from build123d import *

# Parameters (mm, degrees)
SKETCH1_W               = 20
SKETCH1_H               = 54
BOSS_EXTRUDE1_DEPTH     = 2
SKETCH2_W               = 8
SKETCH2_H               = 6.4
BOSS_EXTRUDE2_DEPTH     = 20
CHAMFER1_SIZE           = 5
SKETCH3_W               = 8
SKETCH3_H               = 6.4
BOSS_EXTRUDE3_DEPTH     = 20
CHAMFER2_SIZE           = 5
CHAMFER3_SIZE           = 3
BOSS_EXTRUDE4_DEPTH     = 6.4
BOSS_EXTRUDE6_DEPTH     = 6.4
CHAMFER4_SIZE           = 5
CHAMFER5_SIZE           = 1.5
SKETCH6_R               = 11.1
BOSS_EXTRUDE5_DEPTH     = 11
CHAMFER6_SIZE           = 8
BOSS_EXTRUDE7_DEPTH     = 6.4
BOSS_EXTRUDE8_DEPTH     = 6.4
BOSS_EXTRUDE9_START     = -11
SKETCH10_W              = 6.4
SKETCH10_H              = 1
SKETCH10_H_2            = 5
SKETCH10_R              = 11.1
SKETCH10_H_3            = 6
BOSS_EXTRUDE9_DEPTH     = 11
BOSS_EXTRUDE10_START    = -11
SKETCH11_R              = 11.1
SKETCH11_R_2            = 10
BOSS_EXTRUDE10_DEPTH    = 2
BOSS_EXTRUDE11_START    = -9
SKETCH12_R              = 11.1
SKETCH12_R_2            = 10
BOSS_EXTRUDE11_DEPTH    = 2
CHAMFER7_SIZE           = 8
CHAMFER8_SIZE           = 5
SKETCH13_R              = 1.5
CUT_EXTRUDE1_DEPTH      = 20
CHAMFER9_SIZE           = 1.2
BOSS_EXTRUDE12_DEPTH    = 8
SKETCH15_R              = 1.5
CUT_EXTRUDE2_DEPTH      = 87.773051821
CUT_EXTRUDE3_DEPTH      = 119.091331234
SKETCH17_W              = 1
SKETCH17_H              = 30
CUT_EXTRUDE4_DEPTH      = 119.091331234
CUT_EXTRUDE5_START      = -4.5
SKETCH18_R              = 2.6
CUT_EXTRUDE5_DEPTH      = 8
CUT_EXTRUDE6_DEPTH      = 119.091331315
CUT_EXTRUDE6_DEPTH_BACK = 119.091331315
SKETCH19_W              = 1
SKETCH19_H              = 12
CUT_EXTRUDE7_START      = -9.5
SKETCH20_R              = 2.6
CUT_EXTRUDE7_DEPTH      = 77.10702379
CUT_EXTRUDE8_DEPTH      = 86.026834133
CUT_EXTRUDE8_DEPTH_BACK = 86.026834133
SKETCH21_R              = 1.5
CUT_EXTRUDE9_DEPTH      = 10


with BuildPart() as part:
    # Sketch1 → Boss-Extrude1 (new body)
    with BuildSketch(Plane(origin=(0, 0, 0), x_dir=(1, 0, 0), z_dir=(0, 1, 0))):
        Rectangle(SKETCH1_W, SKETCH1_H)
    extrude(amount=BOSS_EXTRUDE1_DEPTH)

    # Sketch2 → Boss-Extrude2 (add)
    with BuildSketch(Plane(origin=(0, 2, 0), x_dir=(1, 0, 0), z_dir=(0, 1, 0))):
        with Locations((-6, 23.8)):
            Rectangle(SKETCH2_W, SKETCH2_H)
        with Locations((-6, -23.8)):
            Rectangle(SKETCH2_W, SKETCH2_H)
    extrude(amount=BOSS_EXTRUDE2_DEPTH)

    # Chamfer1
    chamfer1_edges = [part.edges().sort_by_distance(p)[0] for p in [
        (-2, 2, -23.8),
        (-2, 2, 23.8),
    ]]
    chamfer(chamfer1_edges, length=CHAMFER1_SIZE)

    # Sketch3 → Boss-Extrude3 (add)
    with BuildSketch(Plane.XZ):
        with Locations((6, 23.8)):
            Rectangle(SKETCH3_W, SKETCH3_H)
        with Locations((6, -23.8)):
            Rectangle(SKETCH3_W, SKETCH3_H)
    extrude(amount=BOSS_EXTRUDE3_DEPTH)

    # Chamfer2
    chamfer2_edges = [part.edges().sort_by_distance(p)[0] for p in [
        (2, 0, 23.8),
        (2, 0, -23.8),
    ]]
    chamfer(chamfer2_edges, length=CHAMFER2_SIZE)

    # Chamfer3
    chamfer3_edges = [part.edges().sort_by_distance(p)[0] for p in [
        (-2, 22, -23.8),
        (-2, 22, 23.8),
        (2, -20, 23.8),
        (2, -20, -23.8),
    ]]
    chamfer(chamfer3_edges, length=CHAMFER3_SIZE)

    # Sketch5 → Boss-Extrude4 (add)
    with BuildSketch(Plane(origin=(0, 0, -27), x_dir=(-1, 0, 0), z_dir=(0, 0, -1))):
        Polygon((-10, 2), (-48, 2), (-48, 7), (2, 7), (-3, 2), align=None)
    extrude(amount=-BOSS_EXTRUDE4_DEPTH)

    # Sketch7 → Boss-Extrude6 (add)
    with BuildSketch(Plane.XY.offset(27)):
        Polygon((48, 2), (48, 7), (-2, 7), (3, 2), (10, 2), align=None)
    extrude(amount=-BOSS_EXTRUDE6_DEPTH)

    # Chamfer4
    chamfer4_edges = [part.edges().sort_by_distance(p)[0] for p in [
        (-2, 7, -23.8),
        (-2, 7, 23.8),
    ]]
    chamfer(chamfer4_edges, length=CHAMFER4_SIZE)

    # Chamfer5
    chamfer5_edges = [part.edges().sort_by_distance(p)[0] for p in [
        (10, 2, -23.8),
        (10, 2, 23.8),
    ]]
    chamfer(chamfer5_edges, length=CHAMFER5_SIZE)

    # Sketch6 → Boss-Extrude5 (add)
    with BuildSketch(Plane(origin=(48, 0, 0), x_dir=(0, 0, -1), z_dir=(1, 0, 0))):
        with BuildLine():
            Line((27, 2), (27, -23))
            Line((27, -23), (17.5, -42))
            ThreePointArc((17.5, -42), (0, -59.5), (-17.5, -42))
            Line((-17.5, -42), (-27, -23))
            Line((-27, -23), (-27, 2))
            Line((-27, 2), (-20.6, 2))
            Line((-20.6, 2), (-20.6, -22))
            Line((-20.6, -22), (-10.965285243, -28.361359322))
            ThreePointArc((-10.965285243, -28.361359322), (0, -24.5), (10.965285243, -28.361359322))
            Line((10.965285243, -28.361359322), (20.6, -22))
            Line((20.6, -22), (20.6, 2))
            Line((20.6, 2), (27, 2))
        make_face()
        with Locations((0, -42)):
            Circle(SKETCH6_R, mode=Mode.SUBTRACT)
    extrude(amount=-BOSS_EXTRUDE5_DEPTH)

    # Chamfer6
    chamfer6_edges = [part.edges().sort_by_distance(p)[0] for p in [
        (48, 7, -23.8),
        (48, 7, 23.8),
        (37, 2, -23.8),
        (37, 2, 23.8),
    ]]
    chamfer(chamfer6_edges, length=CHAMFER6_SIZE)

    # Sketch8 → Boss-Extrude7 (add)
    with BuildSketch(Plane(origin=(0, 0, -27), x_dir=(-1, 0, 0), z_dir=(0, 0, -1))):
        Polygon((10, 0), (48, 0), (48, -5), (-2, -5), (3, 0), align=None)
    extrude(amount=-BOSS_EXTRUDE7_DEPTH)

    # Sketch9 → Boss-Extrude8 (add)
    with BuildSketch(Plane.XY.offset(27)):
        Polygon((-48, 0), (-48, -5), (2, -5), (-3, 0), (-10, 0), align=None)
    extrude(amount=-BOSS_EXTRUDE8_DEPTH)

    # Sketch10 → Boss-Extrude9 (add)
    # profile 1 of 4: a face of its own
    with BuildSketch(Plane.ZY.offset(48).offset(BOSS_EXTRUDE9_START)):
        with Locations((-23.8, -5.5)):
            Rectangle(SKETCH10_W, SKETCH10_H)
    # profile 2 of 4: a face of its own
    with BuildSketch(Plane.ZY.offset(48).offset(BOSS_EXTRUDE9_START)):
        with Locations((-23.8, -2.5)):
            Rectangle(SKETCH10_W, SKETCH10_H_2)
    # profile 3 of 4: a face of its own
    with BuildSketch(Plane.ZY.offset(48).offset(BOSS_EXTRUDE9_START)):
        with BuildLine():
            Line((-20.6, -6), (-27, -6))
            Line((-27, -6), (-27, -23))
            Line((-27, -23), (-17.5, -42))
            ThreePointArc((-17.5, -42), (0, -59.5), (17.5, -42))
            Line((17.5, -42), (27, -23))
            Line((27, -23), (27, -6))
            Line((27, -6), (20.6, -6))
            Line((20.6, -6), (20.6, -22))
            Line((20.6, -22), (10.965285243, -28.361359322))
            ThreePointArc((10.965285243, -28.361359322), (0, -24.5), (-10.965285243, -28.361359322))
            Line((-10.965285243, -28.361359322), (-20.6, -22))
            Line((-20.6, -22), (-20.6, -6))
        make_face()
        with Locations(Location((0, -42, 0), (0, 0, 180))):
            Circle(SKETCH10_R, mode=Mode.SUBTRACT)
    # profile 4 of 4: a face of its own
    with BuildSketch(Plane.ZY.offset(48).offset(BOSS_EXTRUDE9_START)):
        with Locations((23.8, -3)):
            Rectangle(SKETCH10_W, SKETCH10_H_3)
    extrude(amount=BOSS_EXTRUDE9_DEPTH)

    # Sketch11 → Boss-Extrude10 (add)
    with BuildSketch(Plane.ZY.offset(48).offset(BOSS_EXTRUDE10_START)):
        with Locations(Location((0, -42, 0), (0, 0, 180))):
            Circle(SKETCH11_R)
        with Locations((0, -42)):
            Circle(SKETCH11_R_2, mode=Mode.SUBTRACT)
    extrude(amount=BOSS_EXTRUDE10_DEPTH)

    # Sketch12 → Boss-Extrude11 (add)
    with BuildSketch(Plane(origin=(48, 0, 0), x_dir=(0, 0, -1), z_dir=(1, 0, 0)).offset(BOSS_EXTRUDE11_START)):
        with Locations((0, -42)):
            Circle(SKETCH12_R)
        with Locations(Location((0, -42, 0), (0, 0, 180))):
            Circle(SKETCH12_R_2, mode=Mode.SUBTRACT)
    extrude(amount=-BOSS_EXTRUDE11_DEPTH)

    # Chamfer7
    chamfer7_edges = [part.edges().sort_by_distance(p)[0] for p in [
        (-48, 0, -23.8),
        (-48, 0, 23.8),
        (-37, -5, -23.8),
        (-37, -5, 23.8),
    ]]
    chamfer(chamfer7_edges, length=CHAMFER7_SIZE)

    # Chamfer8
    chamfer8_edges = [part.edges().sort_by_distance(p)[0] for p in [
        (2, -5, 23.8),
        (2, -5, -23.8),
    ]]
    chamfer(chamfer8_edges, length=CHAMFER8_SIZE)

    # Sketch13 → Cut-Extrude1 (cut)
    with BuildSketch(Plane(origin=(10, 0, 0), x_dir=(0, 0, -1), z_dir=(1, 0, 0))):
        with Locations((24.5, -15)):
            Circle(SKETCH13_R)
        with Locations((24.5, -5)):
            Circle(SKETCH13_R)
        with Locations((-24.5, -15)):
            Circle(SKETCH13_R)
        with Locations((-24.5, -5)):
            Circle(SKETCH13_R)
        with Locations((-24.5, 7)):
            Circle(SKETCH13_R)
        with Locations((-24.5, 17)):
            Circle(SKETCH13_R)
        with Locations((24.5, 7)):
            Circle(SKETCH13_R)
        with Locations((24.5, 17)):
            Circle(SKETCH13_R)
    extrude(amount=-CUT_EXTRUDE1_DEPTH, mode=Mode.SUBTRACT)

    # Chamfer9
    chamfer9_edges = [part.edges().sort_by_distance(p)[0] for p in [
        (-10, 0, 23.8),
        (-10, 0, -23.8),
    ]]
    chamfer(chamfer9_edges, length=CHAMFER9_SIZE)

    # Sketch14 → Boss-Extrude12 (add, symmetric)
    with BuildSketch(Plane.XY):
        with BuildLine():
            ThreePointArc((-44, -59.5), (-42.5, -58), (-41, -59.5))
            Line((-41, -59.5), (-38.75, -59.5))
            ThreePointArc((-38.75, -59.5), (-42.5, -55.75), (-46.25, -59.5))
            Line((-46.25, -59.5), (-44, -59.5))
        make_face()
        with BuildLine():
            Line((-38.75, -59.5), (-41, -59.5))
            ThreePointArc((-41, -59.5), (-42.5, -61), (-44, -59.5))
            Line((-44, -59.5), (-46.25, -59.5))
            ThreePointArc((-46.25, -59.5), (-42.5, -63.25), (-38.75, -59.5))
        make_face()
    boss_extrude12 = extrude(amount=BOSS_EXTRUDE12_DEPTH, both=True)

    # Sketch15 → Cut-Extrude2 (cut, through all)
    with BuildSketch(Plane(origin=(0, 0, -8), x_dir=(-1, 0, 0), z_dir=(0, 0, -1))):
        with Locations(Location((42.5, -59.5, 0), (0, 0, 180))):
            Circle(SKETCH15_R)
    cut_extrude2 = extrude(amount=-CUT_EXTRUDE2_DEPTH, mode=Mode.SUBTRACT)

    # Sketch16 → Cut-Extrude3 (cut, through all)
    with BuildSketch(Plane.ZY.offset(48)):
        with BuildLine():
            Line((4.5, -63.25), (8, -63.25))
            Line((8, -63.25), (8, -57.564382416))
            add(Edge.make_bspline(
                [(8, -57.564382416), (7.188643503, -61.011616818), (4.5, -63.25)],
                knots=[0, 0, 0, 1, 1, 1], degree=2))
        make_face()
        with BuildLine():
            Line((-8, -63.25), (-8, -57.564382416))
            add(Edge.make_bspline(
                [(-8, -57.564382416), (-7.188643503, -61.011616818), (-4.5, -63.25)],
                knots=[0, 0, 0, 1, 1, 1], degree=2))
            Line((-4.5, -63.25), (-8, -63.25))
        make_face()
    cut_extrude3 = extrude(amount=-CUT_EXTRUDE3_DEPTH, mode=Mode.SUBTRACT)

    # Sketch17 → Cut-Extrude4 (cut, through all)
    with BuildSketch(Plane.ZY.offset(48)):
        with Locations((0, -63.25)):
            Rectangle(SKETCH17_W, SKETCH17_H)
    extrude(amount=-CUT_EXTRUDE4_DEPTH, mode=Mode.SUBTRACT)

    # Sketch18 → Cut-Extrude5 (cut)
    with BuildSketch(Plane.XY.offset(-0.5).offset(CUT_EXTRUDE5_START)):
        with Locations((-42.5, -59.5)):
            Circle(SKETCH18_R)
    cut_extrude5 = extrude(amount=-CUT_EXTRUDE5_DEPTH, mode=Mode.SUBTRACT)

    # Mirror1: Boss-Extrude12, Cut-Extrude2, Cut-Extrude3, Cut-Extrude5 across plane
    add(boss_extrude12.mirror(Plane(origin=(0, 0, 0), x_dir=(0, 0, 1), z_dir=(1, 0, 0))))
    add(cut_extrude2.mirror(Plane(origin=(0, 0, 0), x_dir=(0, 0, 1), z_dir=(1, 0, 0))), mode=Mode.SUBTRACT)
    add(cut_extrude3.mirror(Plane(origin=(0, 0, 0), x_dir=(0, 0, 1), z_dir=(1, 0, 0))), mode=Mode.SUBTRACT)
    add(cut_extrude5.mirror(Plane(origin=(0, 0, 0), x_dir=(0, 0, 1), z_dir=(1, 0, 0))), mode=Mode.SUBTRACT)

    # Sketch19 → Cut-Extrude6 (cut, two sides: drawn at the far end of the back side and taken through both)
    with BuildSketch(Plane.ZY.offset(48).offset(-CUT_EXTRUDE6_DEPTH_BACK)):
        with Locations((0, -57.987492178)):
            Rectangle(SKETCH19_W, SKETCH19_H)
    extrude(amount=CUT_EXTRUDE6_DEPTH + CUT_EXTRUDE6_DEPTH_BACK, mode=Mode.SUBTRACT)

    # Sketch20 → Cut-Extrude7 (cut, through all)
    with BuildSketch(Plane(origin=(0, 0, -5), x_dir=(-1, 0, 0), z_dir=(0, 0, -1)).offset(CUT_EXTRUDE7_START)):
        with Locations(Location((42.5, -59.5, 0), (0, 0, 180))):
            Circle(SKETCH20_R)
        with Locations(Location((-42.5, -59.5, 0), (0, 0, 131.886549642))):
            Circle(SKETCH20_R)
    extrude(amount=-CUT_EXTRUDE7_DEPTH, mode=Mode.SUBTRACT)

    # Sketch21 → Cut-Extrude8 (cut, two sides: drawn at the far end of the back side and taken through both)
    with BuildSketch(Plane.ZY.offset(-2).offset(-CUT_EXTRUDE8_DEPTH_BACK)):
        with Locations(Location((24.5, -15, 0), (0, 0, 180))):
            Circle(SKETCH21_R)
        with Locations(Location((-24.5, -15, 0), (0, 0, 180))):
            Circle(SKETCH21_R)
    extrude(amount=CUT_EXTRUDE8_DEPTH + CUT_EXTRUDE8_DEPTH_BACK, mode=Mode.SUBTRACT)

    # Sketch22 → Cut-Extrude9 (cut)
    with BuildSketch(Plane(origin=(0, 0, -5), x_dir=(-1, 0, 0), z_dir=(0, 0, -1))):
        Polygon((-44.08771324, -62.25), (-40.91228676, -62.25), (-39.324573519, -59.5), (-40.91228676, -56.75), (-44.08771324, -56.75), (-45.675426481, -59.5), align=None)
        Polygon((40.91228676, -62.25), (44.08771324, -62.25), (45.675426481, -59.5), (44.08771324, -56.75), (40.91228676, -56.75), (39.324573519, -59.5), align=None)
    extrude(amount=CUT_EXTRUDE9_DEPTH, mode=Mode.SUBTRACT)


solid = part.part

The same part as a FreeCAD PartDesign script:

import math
import FreeCAD as App
import Part
import Sketcher
from FreeCAD import Vector
Q = App.Units.Quantity


def edges_at(feature, points):
    """Names of the edges that pass closest to the given points."""
    edges = feature.Shape.Edges
    near = lambda p: min(range(len(edges)), key=lambda i: edges[i].distToShape(Part.Vertex(*p))[0])
    return sorted({f"Edge{near(p) + 1}" for p in points})


def add_polygon(sketch, points):
    """Adds a closed chain of lines whose ends are joined by coincident constraints."""
    first, n = sketch.GeometryCount, len(points)
    for a, b in zip(points, points[1:] + points[:1]):
        sketch.addGeometry(Part.LineSegment(App.Vector(*a, 0), App.Vector(*b, 0)), False)
    for i in range(n):
        sketch.addConstraint(Sketcher.Constraint("Coincident", first + i, 2, first + (i + 1) % n, 1))

doc = App.newDocument("Part")
body = doc.addObject("PartDesign::Body", "Body")

# Sketch on XZ plane
sketch1 = body.newObject("Sketcher::SketchObject", "Sketch")
sketch1.AttachmentSupport = (doc.getObject("XZ_Plane"), [""])
sketch1.MapMode = "FlatFace"
add_polygon(sketch1, [(-10, -27), (-10, 27), (10, 27), (10, -27)])  # lines 0-3
sketch1.addConstraint(Sketcher.Constraint("Vertical", 0))
sketch1.addConstraint(Sketcher.Constraint("Horizontal", 1))
sketch1.addConstraint(Sketcher.Constraint("Vertical", 2))
sketch1.addConstraint(Sketcher.Constraint("Horizontal", 3))
sketch1.addConstraint(Sketcher.Constraint("Symmetric", 0, 2, 2, 2, -1, 1))
sketch1.addConstraint(Sketcher.Constraint("DistanceX", 1, 1, 1, 2, Q("20 mm")))
sketch1.addConstraint(Sketcher.Constraint("DistanceY", 0, 1, 0, 2, Q("54 mm")))
pad1 = body.newObject("PartDesign::Pad", "Pad")
pad1.Profile = sketch1
pad1.Length = 2
pad1.Reversed = True

# Sketch on XZ plane
sketch2 = body.newObject("Sketcher::SketchObject", "Sketch001")
sketch2.AttachmentSupport = (doc.getObject("XZ_Plane"), [""])
sketch2.MapMode = "FlatFace"
sketch2.AttachmentOffset = App.Placement(Vector(0, 0, -2), App.Rotation())
add_polygon(sketch2, [(-10, -27), (-10, -21), (-2, -21), (-2, -27)])  # lines 0-3
add_polygon(sketch2, [(-10, 21), (-10, 27), (-2, 27), (-2, 21)])  # lines 4-7
sketch2.addConstraint(Sketcher.Constraint("Vertical", 0))
sketch2.addConstraint(Sketcher.Constraint("Horizontal", 1))
sketch2.addConstraint(Sketcher.Constraint("Vertical", 2))
sketch2.addConstraint(Sketcher.Constraint("Horizontal", 3))
sketch2.addConstraint(Sketcher.Constraint("Vertical", 4))
sketch2.addConstraint(Sketcher.Constraint("Horizontal", 5))
sketch2.addConstraint(Sketcher.Constraint("Vertical", 6))
sketch2.addConstraint(Sketcher.Constraint("Horizontal", 7))
sketch2.addConstraint(Sketcher.Constraint("Symmetric", 3, 2, 4, 2, -1))
sketch2.addConstraint(Sketcher.Constraint("Symmetric", 1, 2, 6, 2, -1))
sketch2.addConstraint(Sketcher.Constraint("DistanceX", 1, 1, 1, 2, Q("8 mm")))
sketch2.addConstraint(Sketcher.Constraint("DistanceY", 0, 1, 0, 2, Q("6.4 mm")))
sketch2.addConstraint(Sketcher.Constraint("DistanceX", 0, 2, -1, 1, Q("10 mm")))
sketch2.addConstraint(Sketcher.Constraint("DistanceY", 2, 2, -1, 1, Q("27 mm")))
pad2 = body.newObject("PartDesign::Pad", "Pad001")
pad2.Profile = sketch2
pad2.Length = 20
pad2.Reversed = True
doc.recompute()

chamfer = body.newObject("PartDesign::Chamfer", "Chamfer")
chamfer.Base = (pad2, edges_at(pad2, [(-2, 2, -23.8), (-2, 2, 23.8)]))
chamfer.Size = 5

# Sketch on XZ plane
sketch3 = body.newObject("Sketcher::SketchObject", "Sketch002")
sketch3.AttachmentSupport = (doc.getObject("XZ_Plane"), [""])
sketch3.MapMode = "FlatFace"
add_polygon(sketch3, [(2, 27), (2, 21), (10, 21), (10, 27)])  # lines 0-3
add_polygon(sketch3, [(2, -21), (2, -27), (10, -27), (10, -21)])  # lines 4-7
sketch3.addConstraint(Sketcher.Constraint("Vertical", 0))
sketch3.addConstraint(Sketcher.Constraint("Horizontal", 1))
sketch3.addConstraint(Sketcher.Constraint("Vertical", 2))
sketch3.addConstraint(Sketcher.Constraint("Horizontal", 3))
sketch3.addConstraint(Sketcher.Constraint("Vertical", 4))
sketch3.addConstraint(Sketcher.Constraint("Horizontal", 5))
sketch3.addConstraint(Sketcher.Constraint("Vertical", 6))
sketch3.addConstraint(Sketcher.Constraint("Horizontal", 7))
sketch3.addConstraint(Sketcher.Constraint("Symmetric", 3, 2, 4, 2, -1))
sketch3.addConstraint(Sketcher.Constraint("Symmetric", 1, 2, 6, 2, -1))
sketch3.addConstraint(Sketcher.Constraint("DistanceX", 1, 1, 1, 2, Q("8 mm")))
sketch3.addConstraint(Sketcher.Constraint("DistanceY", 0, 2, 0, 1, Q("6.4 mm")))
sketch3.addConstraint(Sketcher.Constraint("DistanceX", -1, 1, 0, 2, Q("2 mm")))
sketch3.addConstraint(Sketcher.Constraint("DistanceY", -1, 1, 2, 2, Q("27 mm")))
pad3 = body.newObject("PartDesign::Pad", "Pad002")
pad3.Profile = sketch3
pad3.Length = 20
doc.recompute()

chamfer2 = body.newObject("PartDesign::Chamfer", "Chamfer001")
chamfer2.Base = (pad3, edges_at(pad3, [(2, 0, 23.8), (2, 0, -23.8)]))
chamfer2.Size = 5
doc.recompute()

chamfer3 = body.newObject("PartDesign::Chamfer", "Chamfer002")
chamfer3.Base = (chamfer2, edges_at(chamfer2, [
    (-2, 22, -23.8),
    (-2, 22, 23.8),
    (2, -20, 23.8),
    (2, -20, -23.8),
]))
chamfer3.Size = 3

# Sketch on XY plane
sketch4 = body.newObject("Sketcher::SketchObject", "Sketch003")
sketch4.AttachmentSupport = (doc.getObject("XY_Plane"), [""])
sketch4.MapMode = "FlatFace"
sketch4.AttachmentOffset = App.Placement(Vector(0, 0, -27), App.Rotation())
add_polygon(sketch4, [(48, 2), (3, 2), (-2, 7), (48, 7)])  # lines 0-3
sketch4.addConstraint(Sketcher.Constraint("Horizontal", 0))
sketch4.addConstraint(Sketcher.Constraint("Horizontal", 2))
sketch4.addConstraint(Sketcher.Constraint("Vertical", 3))
sketch4.addConstraint(Sketcher.Constraint("DistanceX", 0, 2, 0, 1, Q("45 mm")))
sketch4.addConstraint(Sketcher.Constraint("DistanceX", 2, 1, 2, 2, Q("50 mm")))
sketch4.addConstraint(Sketcher.Constraint("DistanceY", 3, 2, 3, 1, Q("5 mm")))
sketch4.addConstraint(Sketcher.Constraint("DistanceX", -1, 1, 0, 2, Q("3 mm")))
sketch4.addConstraint(Sketcher.Constraint("DistanceY", -1, 1, 0, 2, Q("2 mm")))
pad4 = body.newObject("PartDesign::Pad", "Pad003")
pad4.Profile = sketch4
pad4.Length = 6.4

# Sketch on XY plane
sketch5 = body.newObject("Sketcher::SketchObject", "Sketch004")
sketch5.AttachmentSupport = (doc.getObject("XY_Plane"), [""])
sketch5.MapMode = "FlatFace"
sketch5.AttachmentOffset = App.Placement(Vector(0, 0, 27), App.Rotation())
add_polygon(sketch5, [(48, 2), (48, 7), (-2, 7), (3, 2)])  # lines 0-3
sketch5.addConstraint(Sketcher.Constraint("Vertical", 0))
sketch5.addConstraint(Sketcher.Constraint("Horizontal", 1))
sketch5.addConstraint(Sketcher.Constraint("Horizontal", 3))
sketch5.addConstraint(Sketcher.Constraint("DistanceX", 1, 2, 1, 1, Q("50 mm")))
sketch5.addConstraint(Sketcher.Constraint("DistanceX", 3, 1, 3, 2, Q("45 mm")))
sketch5.addConstraint(Sketcher.Constraint("DistanceY", 0, 1, 0, 2, Q("5 mm")))
sketch5.addConstraint(Sketcher.Constraint("DistanceX", -1, 1, 0, 2, Q("48 mm")))
sketch5.addConstraint(Sketcher.Constraint("DistanceY", -1, 1, 0, 2, Q("7 mm")))
pad5 = body.newObject("PartDesign::Pad", "Pad004")
pad5.Profile = sketch5
pad5.Length = 6.4
pad5.Reversed = True
doc.recompute()

chamfer4 = body.newObject("PartDesign::Chamfer", "Chamfer003")
chamfer4.Base = (pad5, edges_at(pad5, [(-2, 7, -23.8), (-2, 7, 23.8)]))
chamfer4.Size = 5
doc.recompute()

chamfer5 = body.newObject("PartDesign::Chamfer", "Chamfer004")
chamfer5.Base = (chamfer4, edges_at(chamfer4, [(10, 2, -23.8), (10, 2, 23.8)]))
chamfer5.Size = 1.5

# Sketch on YZ plane
sketch6 = body.newObject("Sketcher::SketchObject", "Sketch005")
sketch6.AttachmentSupport = (doc.getObject("YZ_Plane"), [""])
sketch6.MapMode = "FlatFace"
sketch6.AttachmentOffset = App.Placement(Vector(0, 0, 48), App.Rotation())
sketch6.addGeometry(Part.LineSegment(Vector(-23, -27, 0), Vector(2, -27, 0)), False)
sketch6.addGeometry(Part.LineSegment(Vector(2, -27, 0), Vector(2, -21, 0)), False)
sketch6.addGeometry(Part.LineSegment(Vector(2, -21, 0), Vector(-22, -21, 0)), False)
sketch6.addGeometry(Part.LineSegment(Vector(-22, -21, 0), Vector(-28, -11, 0)), False)
sketch6.addGeometry(Part.ArcOfCircle(Part.Circle(Vector(-42, 0, 0), Vector(0, 0, 1), 18), math.radians(-39), math.radians(39)), False)
sketch6.addGeometry(Part.LineSegment(Vector(-28, 11, 0), Vector(-22, 21, 0)), False)
sketch6.addGeometry(Part.LineSegment(Vector(-22, 21, 0), Vector(2, 21, 0)), False)
sketch6.addGeometry(Part.LineSegment(Vector(2, 21, 0), Vector(2, 27, 0)), False)
sketch6.addGeometry(Part.LineSegment(Vector(2, 27, 0), Vector(-23, 27, 0)), False)
sketch6.addGeometry(Part.LineSegment(Vector(-23, 27, 0), Vector(-42, 18, 0)), False)
sketch6.addGeometry(Part.ArcOfCircle(Part.Circle(Vector(-42, 0, 0), Vector(0, 0, 1), 18), math.radians(90), math.radians(270)), False)
sketch6.addGeometry(Part.LineSegment(Vector(-42, -18, 0), Vector(-23, -27, 0)), False)
sketch6.addGeometry(Part.Circle(Vector(-42, 0, 0), Vector(0, 0, 1), 11), False)
sketch6.addConstraint(Sketcher.Constraint("Coincident", 0, 2, 1, 1))
sketch6.addConstraint(Sketcher.Constraint("Coincident", 1, 2, 2, 1))
sketch6.addConstraint(Sketcher.Constraint("Coincident", 2, 2, 3, 1))
sketch6.addConstraint(Sketcher.Constraint("Coincident", 3, 2, 4, 1))
sketch6.addConstraint(Sketcher.Constraint("Coincident", 4, 2, 5, 1))
sketch6.addConstraint(Sketcher.Constraint("Coincident", 5, 2, 6, 1))
sketch6.addConstraint(Sketcher.Constraint("Coincident", 6, 2, 7, 1))
sketch6.addConstraint(Sketcher.Constraint("Coincident", 7, 2, 8, 1))
sketch6.addConstraint(Sketcher.Constraint("Coincident", 8, 2, 9, 1))
sketch6.addConstraint(Sketcher.Constraint("Coincident", 9, 2, 10, 1))
sketch6.addConstraint(Sketcher.Constraint("Coincident", 10, 2, 11, 1))
sketch6.addConstraint(Sketcher.Constraint("Coincident", 11, 2, 0, 1))
sketch6.addConstraint(Sketcher.Constraint("Horizontal", 0))
sketch6.addConstraint(Sketcher.Constraint("Vertical", 1))
sketch6.addConstraint(Sketcher.Constraint("Horizontal", 2))
sketch6.addConstraint(Sketcher.Constraint("Horizontal", 6))
sketch6.addConstraint(Sketcher.Constraint("Vertical", 7))
sketch6.addConstraint(Sketcher.Constraint("Horizontal", 8))
sketch6.addConstraint(Sketcher.Constraint("Coincident", 10, 3, 4, 3))
sketch6.addConstraint(Sketcher.Constraint("Coincident", 12, 3, 4, 3))
sketch6.addConstraint(Sketcher.Constraint("Equal", 4, 10))
sketch6.addConstraint(Sketcher.Constraint("Symmetric", 3, 2, 4, 2, -1))
sketch6.addConstraint(Sketcher.Constraint("Symmetric", 2, 2, 5, 2, -1))
sketch6.addConstraint(Sketcher.Constraint("Symmetric", 0, 2, 7, 2, -1))
sketch6.addConstraint(Sketcher.Constraint("Vertical", 12, 3, 9, 2))
sketch6.addConstraint(Sketcher.Constraint("Vertical", 9, 2, 10, 2))
sketch6.addConstraint(Sketcher.Constraint("Vertical", 8, 2, 11, 2))
sketch6.addConstraint(Sketcher.Constraint("Diameter", 12, Q("22.2 mm")))
sketch6.addConstraint(Sketcher.Constraint("Radius", 4, Q("17.5 mm")))
sketch6.addConstraint(Sketcher.Constraint("DistanceX", 0, 1, 0, 2, Q("25 mm")))
sketch6.addConstraint(Sketcher.Constraint("DistanceX", 2, 2, 2, 1, Q("24 mm")))
sketch6.addConstraint(Sketcher.Constraint("DistanceY", 1, 1, 1, 2, Q("6.4 mm")))
sketch6.addConstraint(Sketcher.Constraint("DistanceX", 4, 3, -1, 1, Q("42 mm")))
sketch6.addConstraint(Sketcher.Constraint("DistanceX", -1, 1, 0, 2, Q("2 mm")))
sketch6.addConstraint(Sketcher.Constraint("DistanceY", 0, 2, -1, 1, Q("27 mm")))
sketch6.addConstraint(Sketcher.Constraint("Distance", 3, Q("11.545329 mm")))
pad6 = body.newObject("PartDesign::Pad", "Pad005")
pad6.Profile = sketch6
pad6.Length = 11
pad6.Reversed = True
doc.recompute()

chamfer6 = body.newObject("PartDesign::Chamfer", "Chamfer005")
chamfer6.Base = (pad6, edges_at(pad6, [
    (48, 7, -23.8),
    (48, 7, 23.8),
    (37, 2, -23.8),
    (37, 2, 23.8),
]))
chamfer6.Size = 8

# Sketch on XY plane
sketch7 = body.newObject("Sketcher::SketchObject", "Sketch006")
sketch7.AttachmentSupport = (doc.getObject("XY_Plane"), [""])
sketch7.MapMode = "FlatFace"
sketch7.AttachmentOffset = App.Placement(Vector(0, 0, -27), App.Rotation())
add_polygon(sketch7, [(-48, 0), (-3, 0), (2, -5), (-48, -5)])  # lines 0-3
sketch7.addConstraint(Sketcher.Constraint("Horizontal", 0))
sketch7.addConstraint(Sketcher.Constraint("Horizontal", 2))
sketch7.addConstraint(Sketcher.Constraint("Vertical", 3))
sketch7.addConstraint(Sketcher.Constraint("PointOnObject", 0, 2, -1))
sketch7.addConstraint(Sketcher.Constraint("DistanceX", 0, 1, 0, 2, Q("45 mm")))
sketch7.addConstraint(Sketcher.Constraint("DistanceX", 2, 2, 2, 1, Q("50 mm")))
sketch7.addConstraint(Sketcher.Constraint("DistanceY", 3, 1, 3, 2, Q("5 mm")))
sketch7.addConstraint(Sketcher.Constraint("DistanceX", 0, 2, -1, 1, Q("3 mm")))
pad7 = body.newObject("PartDesign::Pad", "Pad006")
pad7.Profile = sketch7
pad7.Length = 6.4

# Sketch on XY plane
sketch8 = body.newObject("Sketcher::SketchObject", "Sketch007")
sketch8.AttachmentSupport = (doc.getObject("XY_Plane"), [""])
sketch8.MapMode = "FlatFace"
sketch8.AttachmentOffset = App.Placement(Vector(0, 0, 27), App.Rotation())
add_polygon(sketch8, [(-48, 0), (-48, -5), (2, -5), (-3, 0)])  # lines 0-3
sketch8.addConstraint(Sketcher.Constraint("Vertical", 0))
sketch8.addConstraint(Sketcher.Constraint("Horizontal", 1))
sketch8.addConstraint(Sketcher.Constraint("Horizontal", 3))
sketch8.addConstraint(Sketcher.Constraint("PointOnObject", 2, 2, -1))
sketch8.addConstraint(Sketcher.Constraint("DistanceX", 1, 1, 1, 2, Q("50 mm")))
sketch8.addConstraint(Sketcher.Constraint("DistanceX", 3, 2, 3, 1, Q("45 mm")))
sketch8.addConstraint(Sketcher.Constraint("DistanceY", 0, 2, 0, 1, Q("5 mm")))
sketch8.addConstraint(Sketcher.Constraint("DistanceX", 0, 2, -1, 1, Q("48 mm")))
pad8 = body.newObject("PartDesign::Pad", "Pad007")
pad8.Profile = sketch8
pad8.Length = 6.4
pad8.Reversed = True

# Sketch on YZ plane
sketch9 = body.newObject("Sketcher::SketchObject", "Sketch008")
sketch9.AttachmentSupport = (doc.getObject("YZ_Plane"), [""])
sketch9.MapMode = "FlatFace"
sketch9.AttachmentOffset = App.Placement(Vector(0, 0, -37), App.Rotation())
sketch9.addGeometry(Part.LineSegment(Vector(-23, -27, 0), Vector(-42, -18, 0)), False)
sketch9.addGeometry(Part.ArcOfCircle(Part.Circle(Vector(-42, 0, 0), Vector(0, 0, 1), 18), math.radians(90), math.radians(270)), False)
sketch9.addGeometry(Part.LineSegment(Vector(-42, 18, 0), Vector(-23, 27, 0)), False)
sketch9.addGeometry(Part.LineSegment(Vector(-23, 27, 0), Vector(0, 27, 0)), False)
sketch9.addGeometry(Part.LineSegment(Vector(0, 27, 0), Vector(0, 21, 0)), False)
sketch9.addGeometry(Part.LineSegment(Vector(0, 21, 0), Vector(-22, 21, 0)), False)
sketch9.addGeometry(Part.LineSegment(Vector(-22, 21, 0), Vector(-28, 11, 0)), False)
sketch9.addGeometry(Part.ArcOfCircle(Part.Circle(Vector(-42, 0, 0), Vector(0, 0, 1), 18), math.radians(-39), math.radians(39)), False)
sketch9.addGeometry(Part.LineSegment(Vector(-28, -11, 0), Vector(-22, -21, 0)), False)
sketch9.addGeometry(Part.LineSegment(Vector(-22, -21, 0), Vector(0, -21, 0)), False)
sketch9.addGeometry(Part.LineSegment(Vector(0, -21, 0), Vector(0, -27, 0)), False)
sketch9.addGeometry(Part.LineSegment(Vector(0, -27, 0), Vector(-23, -27, 0)), False)
sketch9.addGeometry(Part.Circle(Vector(-42, 0, 0), Vector(0, 0, 1), 11), False)
sketch9.addConstraint(Sketcher.Constraint("Coincident", 0, 2, 1, 2))
sketch9.addConstraint(Sketcher.Constraint("Coincident", 1, 1, 2, 1))
sketch9.addConstraint(Sketcher.Constraint("Coincident", 2, 2, 3, 1))
sketch9.addConstraint(Sketcher.Constraint("Coincident", 3, 2, 4, 1))
sketch9.addConstraint(Sketcher.Constraint("Coincident", 4, 2, 5, 1))
sketch9.addConstraint(Sketcher.Constraint("Coincident", 5, 2, 6, 1))
sketch9.addConstraint(Sketcher.Constraint("Coincident", 6, 2, 7, 2))
sketch9.addConstraint(Sketcher.Constraint("Coincident", 7, 1, 8, 1))
sketch9.addConstraint(Sketcher.Constraint("Coincident", 8, 2, 9, 1))
sketch9.addConstraint(Sketcher.Constraint("Coincident", 9, 2, 10, 1))
sketch9.addConstraint(Sketcher.Constraint("Coincident", 10, 2, 11, 1))
sketch9.addConstraint(Sketcher.Constraint("Coincident", 11, 2, 0, 1))
sketch9.addConstraint(Sketcher.Constraint("Horizontal", 3))
sketch9.addConstraint(Sketcher.Constraint("Vertical", 4))
sketch9.addConstraint(Sketcher.Constraint("Horizontal", 5))
sketch9.addConstraint(Sketcher.Constraint("Horizontal", 9))
sketch9.addConstraint(Sketcher.Constraint("Vertical", 10))
sketch9.addConstraint(Sketcher.Constraint("Horizontal", 11))
sketch9.addConstraint(Sketcher.Constraint("Coincident", 7, 3, 1, 3))
sketch9.addConstraint(Sketcher.Constraint("Coincident", 12, 3, 1, 3))
sketch9.addConstraint(Sketcher.Constraint("Equal", 1, 7))
sketch9.addConstraint(Sketcher.Constraint("Symmetric", 4, 2, 9, 2, -1, 1))
sketch9.addConstraint(Sketcher.Constraint("Symmetric", 0, 2, 1, 1, -1))
sketch9.addConstraint(Sketcher.Constraint("Symmetric", 3, 2, 10, 2, -1))
sketch9.addConstraint(Sketcher.Constraint("Vertical", 12, 3, 0, 2))
sketch9.addConstraint(Sketcher.Constraint("Vertical", 6, 2, 7, 1))
sketch9.addConstraint(Sketcher.Constraint("Vertical", 5, 2, 8, 2))
sketch9.addConstraint(Sketcher.Constraint("Vertical", 2, 2, 11, 2))
sketch9.addConstraint(Sketcher.Constraint("Diameter", 12, Q("22.2 mm")))
sketch9.addConstraint(Sketcher.Constraint("Radius", 1, Q("17.5 mm")))
sketch9.addConstraint(Sketcher.Constraint("DistanceX", 3, 1, 3, 2, Q("23 mm")))
sketch9.addConstraint(Sketcher.Constraint("DistanceX", 5, 2, 5, 1, Q("22 mm")))
sketch9.addConstraint(Sketcher.Constraint("DistanceY", 4, 2, 4, 1, Q("6.4 mm")))
sketch9.addConstraint(Sketcher.Constraint("DistanceX", 1, 3, -1, 1, Q("42 mm")))
sketch9.addConstraint(Sketcher.Constraint("DistanceY", -1, 1, 2, 2, Q("27 mm")))
sketch9.addConstraint(Sketcher.Constraint("Distance", 6, Q("11.545329 mm")))
pad9 = body.newObject("PartDesign::Pad", "Pad008")
pad9.Profile = sketch9
pad9.Length = 11
pad9.Reversed = True

# Sketch on YZ plane
sketch10 = body.newObject("Sketcher::SketchObject", "Sketch009")
sketch10.AttachmentSupport = (doc.getObject("YZ_Plane"), [""])
sketch10.MapMode = "FlatFace"
sketch10.AttachmentOffset = App.Placement(Vector(0, 0, -37), App.Rotation())
sketch10.addGeometry(Part.Circle(Vector(-42, 0, 0), Vector(0, 0, 1), 11), False)
sketch10.addGeometry(Part.Circle(Vector(-42, 0, 0), Vector(0, 0, 1), 10), False)
sketch10.addConstraint(Sketcher.Constraint("Coincident", 1, 3, 0, 3))
sketch10.addConstraint(Sketcher.Constraint("PointOnObject", 0, 3, -1))
sketch10.addConstraint(Sketcher.Constraint("Diameter", 1, Q("20 mm")))
sketch10.addConstraint(Sketcher.Constraint("Diameter", 0, Q("22.2 mm")))
sketch10.addConstraint(Sketcher.Constraint("DistanceX", 0, 3, -1, 1, Q("42 mm")))
pad10 = body.newObject("PartDesign::Pad", "Pad009")
pad10.Profile = sketch10
pad10.Length = 2
pad10.Reversed = True

# Sketch on YZ plane
sketch11 = body.newObject("Sketcher::SketchObject", "Sketch010")
sketch11.AttachmentSupport = (doc.getObject("YZ_Plane"), [""])
sketch11.MapMode = "FlatFace"
sketch11.AttachmentOffset = App.Placement(Vector(0, 0, 39), App.Rotation())
sketch11.addGeometry(Part.Circle(Vector(-42, 0, 0), Vector(0, 0, 1), 11), False)
sketch11.addGeometry(Part.Circle(Vector(-42, 0, 0), Vector(0, 0, 1), 10), False)
sketch11.addConstraint(Sketcher.Constraint("Coincident", 1, 3, 0, 3))
sketch11.addConstraint(Sketcher.Constraint("PointOnObject", 0, 3, -1))
sketch11.addConstraint(Sketcher.Constraint("Diameter", 1, Q("20 mm")))
sketch11.addConstraint(Sketcher.Constraint("Diameter", 0, Q("22.2 mm")))
sketch11.addConstraint(Sketcher.Constraint("DistanceX", 0, 3, -1, 1, Q("42 mm")))
pad11 = body.newObject("PartDesign::Pad", "Pad010")
pad11.Profile = sketch11
pad11.Length = 2
pad11.Reversed = True
doc.recompute()

chamfer7 = body.newObject("PartDesign::Chamfer", "Chamfer006")
chamfer7.Base = (pad11, edges_at(pad11, [
    (-48, 0, -23.8),
    (-48, 0, 23.8),
    (-37, -5, -23.8),
    (-37, -5, 23.8),
]))
chamfer7.Size = 8
doc.recompute()

chamfer8 = body.newObject("PartDesign::Chamfer", "Chamfer007")
chamfer8.Base = (chamfer7, edges_at(chamfer7, [(2, -5, 23.8), (2, -5, -23.8)]))
chamfer8.Size = 5

# Sketch on YZ plane
sketch12 = body.newObject("Sketcher::SketchObject", "Sketch011")
sketch12.AttachmentSupport = (doc.getObject("YZ_Plane"), [""])
sketch12.MapMode = "FlatFace"
sketch12.AttachmentOffset = App.Placement(Vector(0, 0, 10), App.Rotation())
sketch12.addGeometry(Part.Circle(Vector(-15, -24.5, 0), Vector(0, 0, 1), 1.5), False)
sketch12.addGeometry(Part.Circle(Vector(-5, -24.5, 0), Vector(0, 0, 1), 1.5), False)
sketch12.addGeometry(Part.Circle(Vector(-15, 24.5, 0), Vector(0, 0, 1), 1.5), False)
sketch12.addGeometry(Part.Circle(Vector(-5, 24.5, 0), Vector(0, 0, 1), 1.5), False)
sketch12.addGeometry(Part.Circle(Vector(7, 24.5, 0), Vector(0, 0, 1), 1.5), False)
sketch12.addGeometry(Part.Circle(Vector(17, 24.5, 0), Vector(0, 0, 1), 1.5), False)
sketch12.addGeometry(Part.Circle(Vector(7, -24.5, 0), Vector(0, 0, 1), 1.5), False)
sketch12.addGeometry(Part.Circle(Vector(17, -24.5, 0), Vector(0, 0, 1), 1.5), False)
sketch12.addConstraint(Sketcher.Constraint("Equal", 0, 1))
sketch12.addConstraint(Sketcher.Constraint("Equal", 1, 2))
sketch12.addConstraint(Sketcher.Constraint("Equal", 2, 3))
sketch12.addConstraint(Sketcher.Constraint("Equal", 3, 4))
sketch12.addConstraint(Sketcher.Constraint("Equal", 4, 5))
sketch12.addConstraint(Sketcher.Constraint("Equal", 5, 6))
sketch12.addConstraint(Sketcher.Constraint("Equal", 6, 7))
sketch12.addConstraint(Sketcher.Constraint("Symmetric", 0, 3, 2, 3, -1))
sketch12.addConstraint(Sketcher.Constraint("Symmetric", 1, 3, 3, 3, -1))
sketch12.addConstraint(Sketcher.Constraint("Symmetric", 4, 3, 6, 3, -1))
sketch12.addConstraint(Sketcher.Constraint("Symmetric", 5, 3, 7, 3, -1))
sketch12.addConstraint(Sketcher.Constraint("Horizontal", 0, 3, 1, 3))
sketch12.addConstraint(Sketcher.Constraint("Horizontal", 3, 3, 4, 3))
sketch12.addConstraint(Sketcher.Constraint("Horizontal", 4, 3, 5, 3))
sketch12.addConstraint(Sketcher.Constraint("Diameter", 0, Q("3 mm")))
sketch12.addConstraint(Sketcher.Constraint("DistanceX", 0, 3, -1, 1, Q("15 mm")))
sketch12.addConstraint(Sketcher.Constraint("DistanceX", 1, 3, -1, 1, Q("5 mm")))
sketch12.addConstraint(Sketcher.Constraint("DistanceX", -1, 1, 4, 3, Q("7 mm")))
sketch12.addConstraint(Sketcher.Constraint("DistanceX", -1, 1, 5, 3, Q("17 mm")))
sketch12.addConstraint(Sketcher.Constraint("DistanceY", 0, 3, 2, 3, Q("49 mm")))
pocket1 = body.newObject("PartDesign::Pocket", "Pocket")
pocket1.Profile = sketch12
pocket1.Length = 20
doc.recompute()

chamfer9 = body.newObject("PartDesign::Chamfer", "Chamfer008")
chamfer9.Base = (pocket1, edges_at(pocket1, [(-10, 0, 23.8), (-10, 0, -23.8)]))
chamfer9.Size = 1.2

# Sketch on XY plane
sketch13 = body.newObject("Sketcher::SketchObject", "Sketch012")
sketch13.AttachmentSupport = (doc.getObject("XY_Plane"), [""])
sketch13.MapMode = "FlatFace"
sketch13.addGeometry(Part.Circle(Vector(-42.5, -59.5, 0), Vector(0, 0, 1), 3.8), False)
sketch13.addGeometry(Part.Circle(Vector(-42.5, -59.5, 0), Vector(0, 0, 1), 1.5), False)
sketch13.addConstraint(Sketcher.Constraint("Coincident", 1, 3, 0, 3))
sketch13.addConstraint(Sketcher.Constraint("Diameter", 1, Q("3 mm")))
sketch13.addConstraint(Sketcher.Constraint("Diameter", 0, Q("7.5 mm")))
sketch13.addConstraint(Sketcher.Constraint("DistanceX", 0, 3, -1, 1, Q("42.5 mm")))
sketch13.addConstraint(Sketcher.Constraint("DistanceY", 0, 3, -1, 1, Q("59.5 mm")))
pad12 = body.newObject("PartDesign::Pad", "Pad011")
pad12.Profile = sketch13
pad12.Length = 16
pad12.Midplane = True

# Sketch on XY plane
sketch14 = body.newObject("Sketcher::SketchObject", "Sketch013")
sketch14.AttachmentSupport = (doc.getObject("XY_Plane"), [""])
sketch14.MapMode = "FlatFace"
sketch14.AttachmentOffset = App.Placement(Vector(0, 0, -8), App.Rotation())
sketch14.addGeometry(Part.Circle(Vector(-42.5, -59.5, 0), Vector(0, 0, 1), 1.5), False)
sketch14.addConstraint(Sketcher.Constraint("Diameter", 0, Q("3 mm")))
sketch14.addConstraint(Sketcher.Constraint("DistanceX", 0, 3, -1, 1, Q("42.5 mm")))
sketch14.addConstraint(Sketcher.Constraint("DistanceY", 0, 3, -1, 1, Q("59.5 mm")))
pocket2 = body.newObject("PartDesign::Pocket", "Pocket001")
pocket2.Profile = sketch14
pocket2.Type = "ThroughAll"
pocket2.Reversed = True

# Sketch on YZ plane
sketch15 = body.newObject("Sketcher::SketchObject", "Sketch014")
sketch15.AttachmentSupport = (doc.getObject("YZ_Plane"), [""])
sketch15.MapMode = "FlatFace"
sketch15.AttachmentOffset = App.Placement(Vector(0, 0, -48), App.Rotation())
sketch15.addGeometry(Part.LineSegment(Vector(-63.25, 4.5, 0), Vector(-63.25, 8, 0)), False)
sketch15.addGeometry(Part.LineSegment(Vector(-63.25, 8, 0), Vector(-57.564382, 8, 0)), False)
sketch15.addGeometry(Part.BSplineCurve([Vector(-57.564382, 8, 0), Vector(-61.011617, 7.188644, 0), Vector(-63.25, 4.5, 0)], [3, 3], [0, 1], False, 2, [1, 1, 1], False), False)
sketch15.addGeometry(Part.LineSegment(Vector(-57.564382, -8, 0), Vector(-63.25, -8, 0)), False)
sketch15.addGeometry(Part.LineSegment(Vector(-63.25, -8, 0), Vector(-63.25, -4.5, 0)), False)
sketch15.addGeometry(Part.BSplineCurve([Vector(-57.564382, -8, 0), Vector(-61.011617, -7.188644, 0), Vector(-63.25, -4.5, 0)], [3, 3], [0, 1], False, 2, [1, 1, 1], False), False)
sketch15.addConstraint(Sketcher.Constraint("Block", 2))
sketch15.addConstraint(Sketcher.Constraint("Block", 5))
sketch15.addConstraint(Sketcher.Constraint("Coincident", 0, 2, 1, 1))
sketch15.addConstraint(Sketcher.Constraint("Coincident", 1, 2, 2, 1))
sketch15.addConstraint(Sketcher.Constraint("Coincident", 2, 2, 0, 1))
sketch15.addConstraint(Sketcher.Constraint("Coincident", 3, 2, 4, 1))
sketch15.addConstraint(Sketcher.Constraint("Coincident", 4, 2, 5, 2))
sketch15.addConstraint(Sketcher.Constraint("Coincident", 5, 1, 3, 1))
sketch15.addConstraint(Sketcher.Constraint("Vertical", 0))
sketch15.addConstraint(Sketcher.Constraint("Horizontal", 1))
sketch15.addConstraint(Sketcher.Constraint("Horizontal", 3))
sketch15.addConstraint(Sketcher.Constraint("Vertical", 4))
pocket3 = body.newObject("PartDesign::Pocket", "Pocket002")
pocket3.Profile = sketch15
pocket3.Type = "ThroughAll"
pocket3.Reversed = True

# Sketch on YZ plane
sketch16 = body.newObject("Sketcher::SketchObject", "Sketch015")
sketch16.AttachmentSupport = (doc.getObject("YZ_Plane"), [""])
sketch16.MapMode = "FlatFace"
sketch16.AttachmentOffset = App.Placement(Vector(0, 0, -48), App.Rotation())
add_polygon(sketch16, [(-48.2, -0.5), (-78.2, -0.5), (-78.2, 0.5), (-48.2, 0.5)])  # lines 0-3
sketch16.addConstraint(Sketcher.Constraint("Horizontal", 0))
sketch16.addConstraint(Sketcher.Constraint("Vertical", 1))
sketch16.addConstraint(Sketcher.Constraint("Horizontal", 2))
sketch16.addConstraint(Sketcher.Constraint("Vertical", 3))
sketch16.addConstraint(Sketcher.Constraint("DistanceX", 0, 2, 0, 1, Q("30 mm")))
sketch16.addConstraint(Sketcher.Constraint("DistanceY", 1, 1, 1, 2, Q("1 mm")))
sketch16.addConstraint(Sketcher.Constraint("DistanceY", 0, 2, -1, 1, Q("0.5 mm")))
sketch16.addConstraint(Sketcher.Constraint("DistanceX", 0, 2, -1, 1, Q("78.25 mm")))
pocket4 = body.newObject("PartDesign::Pocket", "Pocket003")
pocket4.Profile = sketch16
pocket4.Type = "ThroughAll"
pocket4.Reversed = True

# Sketch on XY plane
sketch17 = body.newObject("Sketcher::SketchObject", "Sketch016")
sketch17.AttachmentSupport = (doc.getObject("XY_Plane"), [""])
sketch17.MapMode = "FlatFace"
sketch17.AttachmentOffset = App.Placement(Vector(0, 0, -5), App.Rotation())
sketch17.addGeometry(Part.Circle(Vector(-42.5, -59.5, 0), Vector(0, 0, 1), 2.6), False)
sketch17.addConstraint(Sketcher.Constraint("Diameter", 0, Q("5.2 mm")))
sketch17.addConstraint(Sketcher.Constraint("DistanceX", 0, 3, -1, 1, Q("42.5 mm")))
sketch17.addConstraint(Sketcher.Constraint("DistanceY", 0, 3, -1, 1, Q("59.5 mm")))
pocket5 = body.newObject("PartDesign::Pocket", "Pocket004")
pocket5.Profile = sketch17
pocket5.Length = 8
doc.recompute()

mirrored = body.newObject("PartDesign::Mirrored", "Mirrored")
mirrored.Originals = [pad12, pocket2, pocket3, pocket5]
mirrored.MirrorPlane = (doc.getObject("YZ_Plane"), [""])
body.Tip = mirrored

# Sketch on YZ plane
sketch18 = body.newObject("Sketcher::SketchObject", "Sketch017")
sketch18.AttachmentSupport = (doc.getObject("YZ_Plane"), [""])
sketch18.MapMode = "FlatFace"
sketch18.AttachmentOffset = App.Placement(Vector(0, 0, -48), App.Rotation())
add_polygon(sketch18, [(-52, -0.5), (-64, -0.5), (-64, 0.5), (-52, 0.5)])  # lines 0-3
sketch18.addConstraint(Sketcher.Constraint("Horizontal", 0))
sketch18.addConstraint(Sketcher.Constraint("Vertical", 1))
sketch18.addConstraint(Sketcher.Constraint("Horizontal", 2))
sketch18.addConstraint(Sketcher.Constraint("Vertical", 3))
sketch18.addConstraint(Sketcher.Constraint("DistanceX", 0, 2, 0, 1, Q("12 mm")))
sketch18.addConstraint(Sketcher.Constraint("DistanceY", 1, 1, 1, 2, Q("1 mm")))
sketch18.addConstraint(Sketcher.Constraint("DistanceY", 0, 2, -1, 1, Q("0.5 mm")))
sketch18.addConstraint(Sketcher.Constraint("DistanceX", 0, 2, -1, 1, Q("63.987492 mm")))
pocket6 = body.newObject("PartDesign::Pocket", "Pocket005")
pocket6.Profile = sketch18
pocket6.Type = "ThroughAll"
pocket6.Midplane = True

# Sketch on XY plane
sketch19 = body.newObject("Sketcher::SketchObject", "Sketch018")
sketch19.AttachmentSupport = (doc.getObject("XY_Plane"), [""])
sketch19.MapMode = "FlatFace"
sketch19.AttachmentOffset = App.Placement(Vector(0, 0, 4.5), App.Rotation())
sketch19.addGeometry(Part.Circle(Vector(-42.5, -59.5, 0), Vector(0, 0, 1), 2.6), False)
sketch19.addGeometry(Part.Circle(Vector(42.5, -59.5, 0), Vector(0, 0, 1), 2.6), False)
sketch19.addConstraint(Sketcher.Constraint("Equal", 0, 1))
sketch19.addConstraint(Sketcher.Constraint("Symmetric", 0, 3, 1, 3, -2))
sketch19.addConstraint(Sketcher.Constraint("Diameter", 0, Q("5.2 mm")))
sketch19.addConstraint(Sketcher.Constraint("DistanceX", 0, 3, 1, 3, Q("85 mm")))
sketch19.addConstraint(Sketcher.Constraint("DistanceY", 0, 3, -1, 1, Q("59.5 mm")))
pocket7 = body.newObject("PartDesign::Pocket", "Pocket006")
pocket7.Profile = sketch19
pocket7.Type = "ThroughAll"
pocket7.Reversed = True

# Sketch on YZ plane
sketch20 = body.newObject("Sketcher::SketchObject", "Sketch019")
sketch20.AttachmentSupport = (doc.getObject("YZ_Plane"), [""])
sketch20.MapMode = "FlatFace"
sketch20.AttachmentOffset = App.Placement(Vector(0, 0, 2), App.Rotation())
sketch20.addGeometry(Part.Circle(Vector(-15, 24.5, 0), Vector(0, 0, 1), 1.5), False)
sketch20.addGeometry(Part.Circle(Vector(-15, -24.5, 0), Vector(0, 0, 1), 1.5), False)
sketch20.addConstraint(Sketcher.Constraint("Equal", 0, 1))
sketch20.addConstraint(Sketcher.Constraint("Symmetric", 0, 3, 1, 3, -1))
sketch20.addConstraint(Sketcher.Constraint("Diameter", 0, Q("3 mm")))
sketch20.addConstraint(Sketcher.Constraint("DistanceX", 0, 3, -1, 1, Q("15 mm")))
sketch20.addConstraint(Sketcher.Constraint("DistanceY", 1, 3, 0, 3, Q("49 mm")))
pocket8 = body.newObject("PartDesign::Pocket", "Pocket007")
pocket8.Profile = sketch20
pocket8.Type = "ThroughAll"
pocket8.Midplane = True

# Sketch on XY plane
sketch21 = body.newObject("Sketcher::SketchObject", "Sketch020")
sketch21.AttachmentSupport = (doc.getObject("XY_Plane"), [""])
sketch21.MapMode = "FlatFace"
sketch21.AttachmentOffset = App.Placement(Vector(0, 0, -5), App.Rotation())
add_polygon(sketch21, [(44.1, -62.2), (40.9, -62.2), (39.3, -59.5), (40.9, -56.8), (44.1, -56.8), (45.7, -59.5)])  # lines 0-5
add_polygon(sketch21, [(-40.9, -62.2), (-44.1, -62.2), (-45.7, -59.5), (-44.1, -56.8), (-40.9, -56.8), (-39.3, -59.5)])  # lines 6-11
sketch21.addConstraint(Sketcher.Constraint("Horizontal", 0))
sketch21.addConstraint(Sketcher.Constraint("Horizontal", 3))
sketch21.addConstraint(Sketcher.Constraint("Horizontal", 6))
sketch21.addConstraint(Sketcher.Constraint("Horizontal", 9))
sketch21.addConstraint(Sketcher.Constraint("Symmetric", 5, 2, 6, 2, -2))
sketch21.addConstraint(Sketcher.Constraint("Symmetric", 4, 2, 7, 2, -2))
sketch21.addConstraint(Sketcher.Constraint("Symmetric", 3, 2, 8, 2, -2))
sketch21.addConstraint(Sketcher.Constraint("Symmetric", 1, 2, 10, 2, -2))
sketch21.addConstraint(Sketcher.Constraint("Parallel", 1, 4))
sketch21.addConstraint(Sketcher.Constraint("Parallel", 2, 5))
sketch21.addConstraint(Sketcher.Constraint("Parallel", 4, 7))
sketch21.addConstraint(Sketcher.Constraint("Parallel", 7, 10))
sketch21.addConstraint(Sketcher.Constraint("Parallel", 8, 11))
sketch21.addConstraint(Sketcher.Constraint("Horizontal", 1, 2, 4, 2))
sketch21.addConstraint(Sketcher.Constraint("Vertical", 0, 2, 2, 2))
sketch21.addConstraint(Sketcher.Constraint("Angle", 1, Q("120 deg")))
sketch21.addConstraint(Sketcher.Constraint("DistanceX", 6, 2, 0, 2, Q("85 mm")))
sketch21.addConstraint(Sketcher.Constraint("DistanceY", 1, 2, -1, 1, Q("59.5 mm")))
sketch21.addConstraint(Sketcher.Constraint("DistanceY", 0, 2, 2, 2, Q("5.5 mm")))
sketch21.addConstraint(Sketcher.Constraint("DistanceX", 0, 2, 0, 1, Q("3.175426 mm")))
pocket9 = body.newObject("PartDesign::Pocket", "Pocket008")
pocket9.Profile = sketch21
pocket9.Length = 10

doc.recompute()
